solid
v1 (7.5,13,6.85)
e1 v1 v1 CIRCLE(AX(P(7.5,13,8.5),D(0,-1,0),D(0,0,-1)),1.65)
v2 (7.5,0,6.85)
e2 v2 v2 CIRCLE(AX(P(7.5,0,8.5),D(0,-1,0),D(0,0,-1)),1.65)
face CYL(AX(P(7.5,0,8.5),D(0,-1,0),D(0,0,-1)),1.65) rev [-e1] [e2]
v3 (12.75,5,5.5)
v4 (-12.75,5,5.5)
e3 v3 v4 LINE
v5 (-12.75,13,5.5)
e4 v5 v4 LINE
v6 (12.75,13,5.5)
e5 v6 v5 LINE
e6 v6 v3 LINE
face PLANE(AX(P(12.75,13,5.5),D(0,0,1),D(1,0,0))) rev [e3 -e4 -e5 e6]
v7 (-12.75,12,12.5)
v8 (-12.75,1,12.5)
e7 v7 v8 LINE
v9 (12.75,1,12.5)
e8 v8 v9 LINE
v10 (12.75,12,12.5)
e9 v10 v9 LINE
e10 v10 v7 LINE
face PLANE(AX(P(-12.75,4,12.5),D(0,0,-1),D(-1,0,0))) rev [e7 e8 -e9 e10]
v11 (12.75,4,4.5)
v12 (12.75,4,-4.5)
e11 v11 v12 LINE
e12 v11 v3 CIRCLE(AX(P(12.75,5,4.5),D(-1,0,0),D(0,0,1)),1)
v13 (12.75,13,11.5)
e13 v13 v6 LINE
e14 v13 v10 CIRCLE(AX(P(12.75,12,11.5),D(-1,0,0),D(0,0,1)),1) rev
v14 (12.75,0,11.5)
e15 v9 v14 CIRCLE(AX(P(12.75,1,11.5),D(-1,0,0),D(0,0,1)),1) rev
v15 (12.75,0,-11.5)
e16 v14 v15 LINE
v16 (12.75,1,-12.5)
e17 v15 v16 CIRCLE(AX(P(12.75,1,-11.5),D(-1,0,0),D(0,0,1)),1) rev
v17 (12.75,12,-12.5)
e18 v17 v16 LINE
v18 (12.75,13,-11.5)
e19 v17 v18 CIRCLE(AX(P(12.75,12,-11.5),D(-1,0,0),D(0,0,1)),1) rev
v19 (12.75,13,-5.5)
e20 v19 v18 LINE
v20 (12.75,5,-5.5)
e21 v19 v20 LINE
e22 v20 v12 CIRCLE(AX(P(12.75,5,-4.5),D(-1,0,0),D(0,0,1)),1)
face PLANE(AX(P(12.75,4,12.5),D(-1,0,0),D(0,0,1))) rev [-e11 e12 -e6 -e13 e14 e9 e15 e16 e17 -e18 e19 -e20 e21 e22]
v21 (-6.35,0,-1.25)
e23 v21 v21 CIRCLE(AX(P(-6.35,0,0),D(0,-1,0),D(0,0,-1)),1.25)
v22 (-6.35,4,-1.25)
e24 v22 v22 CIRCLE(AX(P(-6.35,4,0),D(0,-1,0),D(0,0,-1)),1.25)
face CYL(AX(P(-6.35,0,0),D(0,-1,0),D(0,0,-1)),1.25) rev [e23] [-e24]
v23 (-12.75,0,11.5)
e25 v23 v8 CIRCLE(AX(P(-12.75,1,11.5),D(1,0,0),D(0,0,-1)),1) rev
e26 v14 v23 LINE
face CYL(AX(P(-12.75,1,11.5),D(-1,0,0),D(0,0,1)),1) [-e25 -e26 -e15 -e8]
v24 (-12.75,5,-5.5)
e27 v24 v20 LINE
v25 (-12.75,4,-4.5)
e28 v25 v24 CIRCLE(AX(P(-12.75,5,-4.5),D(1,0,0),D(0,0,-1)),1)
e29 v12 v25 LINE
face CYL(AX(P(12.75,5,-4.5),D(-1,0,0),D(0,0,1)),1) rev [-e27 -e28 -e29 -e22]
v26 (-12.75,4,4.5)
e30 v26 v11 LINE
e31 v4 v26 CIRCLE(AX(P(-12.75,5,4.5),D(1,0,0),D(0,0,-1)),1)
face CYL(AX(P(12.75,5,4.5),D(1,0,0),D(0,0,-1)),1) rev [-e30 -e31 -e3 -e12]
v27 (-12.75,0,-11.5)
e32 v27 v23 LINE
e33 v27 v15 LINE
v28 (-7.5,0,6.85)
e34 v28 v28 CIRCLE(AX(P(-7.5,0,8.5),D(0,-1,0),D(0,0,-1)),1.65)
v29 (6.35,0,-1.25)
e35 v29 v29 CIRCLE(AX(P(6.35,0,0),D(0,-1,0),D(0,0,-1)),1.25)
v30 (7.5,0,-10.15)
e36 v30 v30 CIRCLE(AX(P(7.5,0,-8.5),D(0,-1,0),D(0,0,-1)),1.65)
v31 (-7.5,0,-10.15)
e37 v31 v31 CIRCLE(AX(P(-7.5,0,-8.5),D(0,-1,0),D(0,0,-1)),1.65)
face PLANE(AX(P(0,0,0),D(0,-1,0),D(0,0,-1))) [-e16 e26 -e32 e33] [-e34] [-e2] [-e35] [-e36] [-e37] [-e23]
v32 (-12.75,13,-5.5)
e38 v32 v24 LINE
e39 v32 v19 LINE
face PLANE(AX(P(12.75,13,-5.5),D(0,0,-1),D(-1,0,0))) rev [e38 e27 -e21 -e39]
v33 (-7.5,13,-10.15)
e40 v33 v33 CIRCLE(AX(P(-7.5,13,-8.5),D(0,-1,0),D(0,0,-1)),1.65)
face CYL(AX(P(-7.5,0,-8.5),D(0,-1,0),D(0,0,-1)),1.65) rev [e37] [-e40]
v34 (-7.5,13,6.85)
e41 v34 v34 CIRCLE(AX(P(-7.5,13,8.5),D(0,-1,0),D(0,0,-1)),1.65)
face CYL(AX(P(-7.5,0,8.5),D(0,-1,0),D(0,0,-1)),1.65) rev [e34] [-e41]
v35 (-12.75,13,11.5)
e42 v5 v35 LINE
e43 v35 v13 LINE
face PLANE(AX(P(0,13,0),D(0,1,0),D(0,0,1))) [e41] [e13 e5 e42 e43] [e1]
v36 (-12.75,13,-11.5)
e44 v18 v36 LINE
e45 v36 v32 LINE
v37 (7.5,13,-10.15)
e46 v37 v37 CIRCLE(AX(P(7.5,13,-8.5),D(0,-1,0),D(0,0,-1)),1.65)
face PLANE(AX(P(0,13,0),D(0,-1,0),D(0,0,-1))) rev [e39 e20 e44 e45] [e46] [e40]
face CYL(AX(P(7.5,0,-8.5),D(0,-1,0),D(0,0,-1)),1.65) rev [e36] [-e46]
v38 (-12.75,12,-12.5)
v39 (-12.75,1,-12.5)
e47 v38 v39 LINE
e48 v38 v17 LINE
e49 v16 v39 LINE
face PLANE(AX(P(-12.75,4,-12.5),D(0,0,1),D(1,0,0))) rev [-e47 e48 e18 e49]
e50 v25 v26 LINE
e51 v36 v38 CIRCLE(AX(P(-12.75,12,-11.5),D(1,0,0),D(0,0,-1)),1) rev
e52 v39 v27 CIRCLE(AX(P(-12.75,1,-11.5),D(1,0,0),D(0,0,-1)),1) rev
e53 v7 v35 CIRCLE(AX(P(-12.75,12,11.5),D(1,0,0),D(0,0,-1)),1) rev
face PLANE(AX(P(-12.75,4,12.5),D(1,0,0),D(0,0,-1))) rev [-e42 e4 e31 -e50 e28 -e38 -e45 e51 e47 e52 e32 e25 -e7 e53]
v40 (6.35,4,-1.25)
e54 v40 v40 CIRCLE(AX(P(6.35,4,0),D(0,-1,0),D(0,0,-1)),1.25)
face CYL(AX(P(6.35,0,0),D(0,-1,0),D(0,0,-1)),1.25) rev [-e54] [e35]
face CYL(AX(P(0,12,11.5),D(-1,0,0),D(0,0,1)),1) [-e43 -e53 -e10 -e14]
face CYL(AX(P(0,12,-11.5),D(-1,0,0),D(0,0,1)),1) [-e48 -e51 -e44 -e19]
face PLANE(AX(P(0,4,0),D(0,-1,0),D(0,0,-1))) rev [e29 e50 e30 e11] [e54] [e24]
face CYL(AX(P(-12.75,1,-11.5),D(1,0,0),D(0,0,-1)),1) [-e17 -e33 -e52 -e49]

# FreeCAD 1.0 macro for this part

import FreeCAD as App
import Part
import Sketcher
Q = App.Units.Quantity


def edges_at(feature, points):
    """Names of the edges that pass closest to the given points."""
    edges = feature.Shape.Edges
    near = lambda p: min(range(len(edges)), key=lambda i: edges[i].distToShape(Part.Vertex(*p))[0])
    return sorted({f"Edge{near(p) + 1}" for p in points})

doc = App.newDocument("Part")
params = doc.addObject("Spreadsheet::Sheet", "Params")
for row, (alias, value) in enumerate([
    ("sketch1_height", "25 mm"),
    ("sketch1_width", "25.5 mm"),
    ("pad1_length", "4 mm"),
    ("sketch2_height", "7 mm"),
    ("sketch2_width", "25.5 mm"),
    ("pad2_length", "9 mm"),
    ("sketch3_diameter", "2.5 mm"),
    ("hole_diameter", "2.5 mm"),
    ("sketch4_diameter", "3.3 mm"),
    ("hole2_diameter", "3.3 mm"),
    ("fillet_radius", "1 mm"),
], start=1):
    params.set(f"A{row}", alias)
    params.set(f"B{row}", "=" + value)
    params.setAlias(f"B{row}", alias)

body = doc.addObject("PartDesign::Body", "Body")

# Sketch on XZ plane
sketch1 = body.newObject("Sketcher::SketchObject", "Sketch")
sketch1.AttachmentSupport = (doc.getObject("XZ_Plane"), [""])
sketch1.MapMode = "FlatFace"
sketch1.addGeometry([
    Part.LineSegment(App.Vector(-13, -12, 0), App.Vector(-13, 12, 0)),
    Part.LineSegment(App.Vector(-13, 12, 0), App.Vector(13, 12, 0)),
    Part.LineSegment(App.Vector(13, 12, 0), App.Vector(13, -12, 0)),
    Part.LineSegment(App.Vector(13, -12, 0), App.Vector(-13, -12, 0)),
], False)
sketch1.addConstraint([
    Sketcher.Constraint("Coincident", 0, 2, 1, 1),
    Sketcher.Constraint("Coincident", 1, 2, 2, 1),
    Sketcher.Constraint("Coincident", 2, 2, 3, 1),
    Sketcher.Constraint("Coincident", 3, 2, 0, 1),
    Sketcher.Constraint("Vertical", 0),
    Sketcher.Constraint("Horizontal", 1),
    Sketcher.Constraint("Vertical", 2),
    Sketcher.Constraint("Horizontal", 3),
    Sketcher.Constraint("Symmetric", 0, 2, 2, 2, -1, 1),
    Sketcher.Constraint("DistanceY", 0, 1, 0, 2, Q("25 mm")),
    Sketcher.Constraint("DistanceX", 1, 1, 1, 2, Q("25.5 mm")),
])
sketch1.setExpression("Constraints[9]", "Params.sketch1_height")
sketch1.setExpression("Constraints[10]", "Params.sketch1_width")
pad1 = body.newObject("PartDesign::Pad", "Pad")
pad1.Profile = sketch1
pad1.setExpression("Length", "Params.pad1_length")
pad1.Reversed = True

# Sketch on XZ plane
sketch2 = body.newObject("Sketcher::SketchObject", "Sketch001")
sketch2.AttachmentSupport = (doc.getObject("XZ_Plane"), [""])
sketch2.MapMode = "FlatFace"
sketch2.AttachmentOffset = App.Placement(App.Vector(0, 0, -4), App.Rotation())
sketch2.addGeometry([
    Part.LineSegment(App.Vector(-13, -12, 0), App.Vector(-13, -6, 0)),  # 0
    Part.LineSegment(App.Vector(-13, -6, 0), App.Vector(13, -6, 0)),  # 1
    Part.LineSegment(App.Vector(13, -6, 0), App.Vector(13, -12, 0)),  # 2
    Part.LineSegment(App.Vector(13, -12, 0), App.Vector(-13, -12, 0)),  # 3
    Part.LineSegment(App.Vector(-13, 6, 0), App.Vector(-13, 12, 0)),  # 4
    Part.LineSegment(App.Vector(-13, 12, 0), App.Vector(13, 12, 0)),  # 5
    Part.LineSegment(App.Vector(13, 12, 0), App.Vector(13, 6, 0)),  # 6
    Part.LineSegment(App.Vector(13, 6, 0), App.Vector(-13, 6, 0)),  # 7
], False)
sketch2.addConstraint([
    Sketcher.Constraint("Coincident", 0, 2, 1, 1),
    Sketcher.Constraint("Coincident", 1, 2, 2, 1),
    Sketcher.Constraint("Coincident", 2, 2, 3, 1),
    Sketcher.Constraint("Coincident", 3, 2, 0, 1),
    Sketcher.Constraint("Coincident", 4, 2, 5, 1),
    Sketcher.Constraint("Coincident", 5, 2, 6, 1),
    Sketcher.Constraint("Coincident", 6, 2, 7, 1),
    Sketcher.Constraint("Coincident", 7, 2, 4, 1),
    Sketcher.Constraint("Vertical", 0),
    Sketcher.Constraint("Horizontal", 1),
    Sketcher.Constraint("Vertical", 2),
    Sketcher.Constraint("Horizontal", 3),
    Sketcher.Constraint("Vertical", 4),
    Sketcher.Constraint("Horizontal", 5),
    Sketcher.Constraint("Vertical", 6),
    Sketcher.Constraint("Horizontal", 7),
    Sketcher.Constraint("Symmetric", 2, 2, 4, 2, -1, 1),
    Sketcher.Constraint("Symmetric", 0, 2, 6, 2, -1, 1),
    Sketcher.Constraint("Vertical", 3, 2, 4, 2),
    Sketcher.Constraint("DistanceY", 0, 1, 0, 2, Q("7 mm")),
    Sketcher.Constraint("DistanceX", 1, 1, 1, 2, Q("25.5 mm")),
    Sketcher.Constraint("DistanceY", 0, 2, 4, 2, Q("18 mm")),
])
sketch2.setExpression("Constraints[19]", "Params.sketch2_height")
sketch2.setExpression("Constraints[20]", "Params.sketch2_width")
pad2 = body.newObject("PartDesign::Pad", "Pad001")
pad2.Profile = sketch2
pad2.setExpression("Length", "Params.pad2_length")
pad2.Reversed = True

# Sketch on XZ plane
sketch3 = body.newObject("Sketcher::SketchObject", "Sketch002")
sketch3.AttachmentSupport = (doc.getObject("XZ_Plane"), [""])
sketch3.MapMode = "FlatFace"
sketch3.addGeometry([
    Part.Circle(App.Vector(6.3, 0, 0), App.Vector(0, 0, 1), 1.2),
    Part.Circle(App.Vector(-6.3, 0, 0), App.Vector(0, 0, 1), 1.2),
], False)
sketch3.addConstraint([
    Sketcher.Constraint("Equal", 0, 1),
    Sketcher.Constraint("Symmetric", 0, 3, 1, 3, -1, 1),
    Sketcher.Constraint("PointOnObject", 0, 3, -1),
    Sketcher.Constraint("Diameter", 0, Q("2.5 mm")),
    Sketcher.Constraint("DistanceX", 1, 3, 0, 3, Q("12.7 mm")),
])
sketch3.setExpression("Constraints[3]", "Params.sketch3_diameter")
doc.recompute()
hole = body.newObject("PartDesign::Hole", "Hole")
hole.Profile = sketch3
hole.ThreadType = "None"
hole.setExpression("Diameter", "Params.hole_diameter")
hole.DepthType = "ThroughAll"

# Sketch on XZ plane
sketch4 = body.newObject("Sketcher::SketchObject", "Sketch003")
sketch4.AttachmentSupport = (doc.getObject("XZ_Plane"), [""])
sketch4.MapMode = "FlatFace"
sketch4.addGeometry([
    Part.Circle(App.Vector(7.5, 8.5, 0), App.Vector(0, 0, 1), 1.6),
    Part.Circle(App.Vector(-7.5, 8.5, 0), App.Vector(0, 0, 1), 1.6),
    Part.Circle(App.Vector(-7.5, -8.5, 0), App.Vector(0, 0, 1), 1.6),
    Part.Circle(App.Vector(7.5, -8.5, 0), App.Vector(0, 0, 1), 1.6),
], False)
sketch4.addConstraint([
    Sketcher.Constraint("Equal", 0, 1),
    Sketcher.Constraint("Equal", 1, 2),
    Sketcher.Constraint("Equal", 2, 3),
    Sketcher.Constraint("Symmetric", 0, 3, 2, 3, -1, 1),
    Sketcher.Constraint("Symmetric", 1, 3, 3, 3, -1, 1),
    Sketcher.Constraint("Symmetric", 0, 3, 1, 3, -2),
    Sketcher.Constraint("Diameter", 0, Q("3.3 mm")),
    Sketcher.Constraint("DistanceX", 1, 3, 0, 3, Q("15 mm")),
    Sketcher.Constraint("DistanceY", 2, 3, 1, 3, Q("17 mm")),
])
sketch4.setExpression("Constraints[6]", "Params.sketch4_diameter")
doc.recompute()
hole2 = body.newObject("PartDesign::Hole", "Hole001")
hole2.Profile = sketch4
hole2.ThreadType = "None"
hole2.setExpression("Diameter", "Params.hole2_diameter")
hole2.DepthType = "ThroughAll"
doc.recompute()

fillet = body.newObject("PartDesign::Fillet", "Fillet")
fillet.Base = (hole2, edges_at(hole2, [
    (0, 4, -5.5),
    (0, 13, -12.5),
    (0, 4, 5.5),
    (0, 13, 12.5),
    (0, 0, 12.5),
    (0, 0, -12.5),
]))
fillet.setExpression("Radius", "Params.fillet_radius")

doc.recompute()
